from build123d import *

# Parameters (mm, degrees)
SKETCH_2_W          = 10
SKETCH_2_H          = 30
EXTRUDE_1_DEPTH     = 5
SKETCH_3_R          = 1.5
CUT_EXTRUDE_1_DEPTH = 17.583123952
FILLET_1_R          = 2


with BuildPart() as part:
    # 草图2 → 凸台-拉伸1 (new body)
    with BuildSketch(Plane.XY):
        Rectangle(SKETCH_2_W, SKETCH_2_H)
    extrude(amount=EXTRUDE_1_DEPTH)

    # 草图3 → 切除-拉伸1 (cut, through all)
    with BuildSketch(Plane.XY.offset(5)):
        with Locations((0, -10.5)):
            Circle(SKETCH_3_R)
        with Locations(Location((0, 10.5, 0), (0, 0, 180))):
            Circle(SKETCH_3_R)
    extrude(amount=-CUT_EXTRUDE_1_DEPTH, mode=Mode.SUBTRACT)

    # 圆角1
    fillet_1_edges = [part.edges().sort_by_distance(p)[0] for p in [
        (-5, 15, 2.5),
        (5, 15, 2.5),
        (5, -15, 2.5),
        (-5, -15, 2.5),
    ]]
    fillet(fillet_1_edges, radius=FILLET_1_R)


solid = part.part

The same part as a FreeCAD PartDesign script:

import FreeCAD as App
import Part
import Sketcher
Q = App.Units.Quantity


def edges_at(feature, points):
    """Names of the edges that pass closest to the given points."""
    edges = feature.Shape.Edges
    near = lambda p: min(range(len(edges)), key=lambda i: edges[i].distToShape(Part.Vertex(*p))[0])
    return sorted({f"Edge{near(p) + 1}" for p in points})


def add_polygon(sketch, points):
    """Adds a closed chain of lines whose ends are joined by coincident constraints."""
    first, n = sketch.GeometryCount, len(points)
    for a, b in zip(points, points[1:] + points[:1]):
        sketch.addGeometry(Part.LineSegment(App.Vector(*a, 0), App.Vector(*b, 0)), False)
    for i in range(n):
        sketch.addConstraint(Sketcher.Constraint("Coincident", first + i, 2, first + (i + 1) % n, 1))

doc = App.newDocument("Part")
params = doc.addObject("Spreadsheet::Sheet", "Params")
for row, (alias, value) in enumerate([
    ("sketch1_width", "10 mm"),
    ("sketch1_height", "30 mm"),
    ("pad1_length", "5 mm"),
    ("sketch2_diameter", "3 mm"),
    ("fillet_radius", "2 mm"),
], start=1):
    params.set(f"A{row}", alias)
    params.set(f"B{row}", "=" + value)
    params.setAlias(f"B{row}", alias)

body = doc.addObject("PartDesign::Body", "Body")

# Sketch on XY plane
sketch1 = body.newObject("Sketcher::SketchObject", "Sketch")
sketch1.AttachmentSupport = (doc.getObject("XY_Plane"), [""])
sketch1.MapMode = "FlatFace"
add_polygon(sketch1, [(-5, 15), (-5, -15), (5, -15), (5, 15)])  # lines 0-3
sketch1.addConstraint(Sketcher.Constraint("Vertical", 0))
sketch1.addConstraint(Sketcher.Constraint("Horizontal", 1))
sketch1.addConstraint(Sketcher.Constraint("Vertical", 2))
sketch1.addConstraint(Sketcher.Constraint("Horizontal", 3))
sketch1.addConstraint(Sketcher.Constraint("Symmetric", 0, 2, 2, 2, -1, 1))
sketch1.addConstraint(Sketcher.Constraint("DistanceX", 1, 1, 1, 2, Q("10 mm")))
sketch1.addConstraint(Sketcher.Constraint("DistanceY", 0, 2, 0, 1, Q("30 mm")))
sketch1.setExpression("Constraints[9]", "Params.sketch1_width")
sketch1.setExpression("Constraints[10]", "Params.sketch1_height")
pad1 = body.newObject("PartDesign::Pad", "Pad")
pad1.Profile = sketch1
pad1.setExpression("Length", "Params.pad1_length")

# Sketch on XY plane
sketch2 = body.newObject("Sketcher::SketchObject", "Sketch001")
sketch2.AttachmentSupport = (doc.getObject("XY_Plane"), [""])
sketch2.MapMode = "FlatFace"
sketch2.AttachmentOffset = App.Placement(App.Vector(0, 0, 5), App.Rotation())
sketch2.addGeometry(Part.Circle(App.Vector(0, -10.5, 0), App.Vector(0, 0, 1), 1.5), False)
sketch2.addGeometry(Part.Circle(App.Vector(0, 10.5, 0), App.Vector(0, 0, 1), 1.5), False)
sketch2.addConstraint(Sketcher.Constraint("Equal", 0, 1))
sketch2.addConstraint(Sketcher.Constraint("Symmetric", 0, 3, 1, 3, -1, 1))
sketch2.addConstraint(Sketcher.Constraint("PointOnObject", 0, 3, -2))
sketch2.addConstraint(Sketcher.Constraint("Diameter", 0, Q("3 mm")))
sketch2.addConstraint(Sketcher.Constraint("DistanceY", 0, 3, 1, 3, Q("21 mm")))
sketch2.setExpression("Constraints[3]", "Params.sketch2_diameter")
pocket1 = body.newObject("PartDesign::Pocket", "Pocket")
pocket1.Profile = sketch2
pocket1.Type = "ThroughAll"
doc.recompute()

fillet = body.newObject("PartDesign::Fillet", "Fillet")
fillet.Base = (pocket1, edges_at(pocket1, [
    (-5, 15, 2.5),
    (5, 15, 2.5),
    (5, -15, 2.5),
    (-5, -15, 2.5),
]))
fillet.setExpression("Radius", "Params.fillet_radius")

doc.recompute()
